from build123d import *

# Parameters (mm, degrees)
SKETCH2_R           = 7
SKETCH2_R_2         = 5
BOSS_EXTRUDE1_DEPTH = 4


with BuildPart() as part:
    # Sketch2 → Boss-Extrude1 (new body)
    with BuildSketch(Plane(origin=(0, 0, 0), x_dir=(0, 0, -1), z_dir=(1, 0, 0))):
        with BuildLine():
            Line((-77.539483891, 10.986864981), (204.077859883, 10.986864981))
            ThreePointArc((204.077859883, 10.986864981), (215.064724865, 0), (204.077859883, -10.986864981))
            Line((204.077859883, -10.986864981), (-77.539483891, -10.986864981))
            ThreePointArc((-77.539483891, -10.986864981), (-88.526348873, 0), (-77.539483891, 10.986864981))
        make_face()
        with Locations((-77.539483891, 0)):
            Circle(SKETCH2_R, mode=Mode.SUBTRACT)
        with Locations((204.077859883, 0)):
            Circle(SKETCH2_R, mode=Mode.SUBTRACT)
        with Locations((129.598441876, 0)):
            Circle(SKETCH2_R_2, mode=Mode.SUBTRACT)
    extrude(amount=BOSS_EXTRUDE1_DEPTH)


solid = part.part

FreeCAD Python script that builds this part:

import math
import FreeCAD as App
import Part
import Sketcher

doc = App.newDocument("Part")
params = doc.addObject("Spreadsheet::Sheet", "Params")
for row, (alias, value) in enumerate([
    ("sketch1_diameter", "14 mm"),
    ("sketch1_diameter2", "10 mm"),
    ("pad1_length", "4 mm"),
], start=1):
    params.set(f"A{row}", alias)
    params.set(f"B{row}", "=" + value)
    params.setAlias(f"B{row}", alias)

body = doc.addObject("PartDesign::Body", "Body")

# Sketch on YZ plane
sketch1 = doc.addObject("Sketcher::SketchObject", "Sketch")
body.addObject(sketch1)
sketch1.AttachmentSupport = (doc.YZ_Plane, [""])
sketch1.MapMode = "FlatFace"
sketch1.addGeometry([
    Part.LineSegment(App.Vector(11, -204, 0), App.Vector(11, 78, 0)),  # 0
    Part.ArcOfCircle(Part.Circle(App.Vector(0, 78, 0), App.Vector(0, 0, 1), 11), math.radians(0), math.radians(180)),  # 1
    Part.LineSegment(App.Vector(-11, 78, 0), App.Vector(-11, -204, 0)),  # 2
    Part.ArcOfCircle(Part.Circle(App.Vector(0, -204, 0), App.Vector(0, 0, 1), 11), math.radians(180), math.radians(360)),  # 3
    Part.Circle(App.Vector(0, -204, 0), App.Vector(0, 0, 1), 7),  # 4
    Part.Circle(App.Vector(0, -130, 0), App.Vector(0, 0, 1), 5),  # 5
    Part.Circle(App.Vector(0, 78, 0), App.Vector(0, 0, 1), 7),  # 6
], False)
sketch1.addConstraint([
    Sketcher.Constraint("Tangent", 0, 2, 1, 1),
    Sketcher.Constraint("Tangent", 1, 2, 2, 1),
    Sketcher.Constraint("Tangent", 2, 2, 3, 1),
    Sketcher.Constraint("Tangent", 3, 2, 0, 1),
    Sketcher.Constraint("Vertical", 0),
    Sketcher.Constraint("Vertical", 2),
    Sketcher.Constraint("Coincident", 4, 3, 3, 3),
    Sketcher.Constraint("Coincident", 6, 3, 1, 3),
    Sketcher.Constraint("Equal", 4, 6),
    Sketcher.Constraint("PointOnObject", 1, 3, -2),
    Sketcher.Constraint("PointOnObject", 5, 3, -2),
    Sketcher.Constraint("Diameter", 4, 14.0),
    Sketcher.Constraint("Diameter", 5, 10.0),
    Sketcher.Constraint("Radius", 1, 10.986865),
    Sketcher.Constraint("DistanceY", 0, 1, 0, 2, 281.617344),
    Sketcher.Constraint("DistanceY", 3, 3, -1, 1, 204.07786),
    Sketcher.Constraint("DistanceY", 5, 3, -1, 1, 129.598442),
])
sketch1.setExpression("Constraints[11]", "Params.sketch1_diameter")
sketch1.setExpression("Constraints[12]", "Params.sketch1_diameter2")
pad1 = doc.addObject("PartDesign::Pad", "Pad")
body.addObject(pad1)
pad1.Profile = sketch1
pad1.setExpression("Length", "Params.pad1_length")

doc.recompute()
